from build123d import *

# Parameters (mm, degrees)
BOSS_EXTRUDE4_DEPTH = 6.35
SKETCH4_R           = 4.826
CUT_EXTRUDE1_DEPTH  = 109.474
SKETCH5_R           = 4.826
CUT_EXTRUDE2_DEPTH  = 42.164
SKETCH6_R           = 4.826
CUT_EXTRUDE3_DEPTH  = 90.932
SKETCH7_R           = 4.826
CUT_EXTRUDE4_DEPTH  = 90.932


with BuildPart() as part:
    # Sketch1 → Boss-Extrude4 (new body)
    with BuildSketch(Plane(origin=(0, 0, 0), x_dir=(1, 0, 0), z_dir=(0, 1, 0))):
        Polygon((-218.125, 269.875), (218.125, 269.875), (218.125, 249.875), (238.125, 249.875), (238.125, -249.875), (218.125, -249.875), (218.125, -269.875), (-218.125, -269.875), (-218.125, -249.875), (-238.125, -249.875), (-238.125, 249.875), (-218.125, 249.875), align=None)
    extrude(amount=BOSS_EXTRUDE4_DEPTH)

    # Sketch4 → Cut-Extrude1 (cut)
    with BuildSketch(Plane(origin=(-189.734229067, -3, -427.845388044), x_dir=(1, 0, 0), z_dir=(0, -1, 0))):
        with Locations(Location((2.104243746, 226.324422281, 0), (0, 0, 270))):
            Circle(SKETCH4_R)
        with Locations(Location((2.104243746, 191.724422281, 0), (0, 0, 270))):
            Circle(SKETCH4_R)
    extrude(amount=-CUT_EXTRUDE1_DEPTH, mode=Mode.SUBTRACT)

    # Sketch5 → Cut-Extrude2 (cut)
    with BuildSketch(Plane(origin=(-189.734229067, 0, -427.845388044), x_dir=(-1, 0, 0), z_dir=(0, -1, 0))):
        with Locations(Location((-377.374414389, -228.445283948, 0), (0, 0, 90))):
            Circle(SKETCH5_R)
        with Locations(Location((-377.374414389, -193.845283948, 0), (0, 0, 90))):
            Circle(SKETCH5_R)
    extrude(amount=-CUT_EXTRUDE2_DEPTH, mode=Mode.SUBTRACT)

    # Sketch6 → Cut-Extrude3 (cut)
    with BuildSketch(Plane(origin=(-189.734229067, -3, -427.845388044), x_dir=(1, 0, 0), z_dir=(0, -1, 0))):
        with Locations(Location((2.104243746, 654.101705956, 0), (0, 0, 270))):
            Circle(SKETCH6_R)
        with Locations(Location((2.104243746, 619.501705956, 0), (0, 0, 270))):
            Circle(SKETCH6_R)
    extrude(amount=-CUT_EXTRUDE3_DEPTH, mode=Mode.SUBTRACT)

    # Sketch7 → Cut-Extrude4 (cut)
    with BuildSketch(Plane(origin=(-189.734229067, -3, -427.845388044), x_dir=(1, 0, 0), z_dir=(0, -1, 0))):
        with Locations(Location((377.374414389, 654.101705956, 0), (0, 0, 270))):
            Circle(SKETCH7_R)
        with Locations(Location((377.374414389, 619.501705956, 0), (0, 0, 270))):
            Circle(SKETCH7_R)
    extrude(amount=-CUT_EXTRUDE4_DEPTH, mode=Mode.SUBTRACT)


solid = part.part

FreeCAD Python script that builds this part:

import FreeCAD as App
import Part
import Sketcher
Q = App.Units.Quantity


def add_polygon(sketch, points):
    """Adds a closed chain of lines whose ends are joined by coincident constraints."""
    first, n = sketch.GeometryCount, len(points)
    for a, b in zip(points, points[1:] + points[:1]):
        sketch.addGeometry(Part.LineSegment(App.Vector(*a, 0), App.Vector(*b, 0)), False)
    for i in range(n):
        sketch.addConstraint(Sketcher.Constraint("Coincident", first + i, 2, first + (i + 1) % n, 1))

doc = App.newDocument("Part")
params = doc.addObject("Spreadsheet::Sheet", "Params")
for row, (alias, value) in enumerate([
    ("pad1_length", "0.25 in"),
    ("sketch2_diameter", "0.38 in"),
    ("pocket1_length", "4.31 in"),
    ("sketch3_diameter", "0.38 in"),
    ("pocket2_length", "1.66 in"),
    ("sketch4_diameter", "0.38 in"),
    ("pocket3_length", "3.58 in"),
    ("sketch5_diameter", "0.38 in"),
    ("pocket4_length", "3.58 in"),
], start=1):
    params.set(f"A{row}", alias)
    params.set(f"B{row}", "=" + value)
    params.setAlias(f"B{row}", alias)

body = doc.addObject("PartDesign::Body", "Body")

sketch1 = doc.addObject("Sketcher::SketchObject", "Sketch")
body.addObject(sketch1)
sketch1.AttachmentSupport = (doc.XZ_Plane, [""])
sketch1.MapMode = "FlatFace"
add_polygon(sketch1, [(218, -270), (-218, -270), (-218, -250), (-238, -250), (-238, 250), (-218, 250), (-218, 270), (218, 270), (218, 250), (238, 250), (238, -250), (218, -250)])
sketch1.addConstraint([
    Sketcher.Constraint("Horizontal", 0),
    Sketcher.Constraint("Vertical", 1),
    Sketcher.Constraint("Horizontal", 2),
    Sketcher.Constraint("Vertical", 3),
    Sketcher.Constraint("Horizontal", 4),
    Sketcher.Constraint("Vertical", 5),
    Sketcher.Constraint("Horizontal", 6),
    Sketcher.Constraint("Vertical", 7),
    Sketcher.Constraint("Horizontal", 8),
    Sketcher.Constraint("Vertical", 9),
    Sketcher.Constraint("Horizontal", 10),
    Sketcher.Constraint("Vertical", 11),
    Sketcher.Constraint("Symmetric", 0, 2, 6, 2, -1, 1),
    Sketcher.Constraint("Symmetric", 2, 2, 8, 2, -1, 1),
    Sketcher.Constraint("Symmetric", 4, 2, 10, 2, -1, 1),
    Sketcher.Constraint("Symmetric", 4, 2, 7, 2, -2),
    Sketcher.Constraint("Equal", 10, 1),
    Sketcher.Constraint("DistanceY", 0, 2, 5, 2, Q("21.25 in")),
    Sketcher.Constraint("DistanceX", 3, 2, 8, 2, Q("18.75 in")),
    Sketcher.Constraint("DistanceX", 0, 2, 0, 1, Q("436.25 mm")),
])
pad1 = doc.addObject("PartDesign::Pad", "Pad")
body.addObject(pad1)
pad1.Profile = sketch1
pad1.setExpression("Length", "Params.pad1_length")
pad1.Reversed = True

sketch2 = doc.addObject("Sketcher::SketchObject", "Sketch001")
body.addObject(sketch2)
sketch2.AttachmentSupport = (doc.XZ_Plane, [""])
sketch2.MapMode = "FlatFace"
sketch2.AttachmentOffset = App.Placement(App.Vector(0, 0, 3), App.Rotation())
sketch2.addGeometry([
    Part.Circle(App.Vector(-187.6, -201.5, 0), App.Vector(0, 0, 1), 4.8),
    Part.Circle(App.Vector(-187.6, -236.1, 0), App.Vector(0, 0, 1), 4.8),
], False)
sketch2.addConstraint([
    Sketcher.Constraint("Equal", 0, 1),
    Sketcher.Constraint("Vertical", 0, 3, 1, 3),
    Sketcher.Constraint("Diameter", 0, Q("0.38 in")),
    Sketcher.Constraint("DistanceY", 1, 3, 0, 3, Q("34.6 mm")),
    Sketcher.Constraint("DistanceX", 0, 3, -1, 1, Q("187.629985 mm")),
    Sketcher.Constraint("DistanceY", 0, 3, -1, 1, Q("201.520966 mm")),
])
sketch2.setExpression("Constraints[2]", "Params.sketch2_diameter")
pocket1 = doc.addObject("PartDesign::Pocket", "Pocket")
body.addObject(pocket1)
pocket1.Profile = sketch2
pocket1.setExpression("Length", "Params.pocket1_length")

sketch3 = doc.addObject("Sketcher::SketchObject", "Sketch002")
body.addObject(sketch3)
sketch3.AttachmentSupport = (doc.XZ_Plane, [""])
sketch3.MapMode = "FlatFace"
sketch3.addGeometry([
    Part.Circle(App.Vector(187.6, -199.4, 0), App.Vector(0, 0, 1), 4.8),
    Part.Circle(App.Vector(187.6, -234, 0), App.Vector(0, 0, 1), 4.8),
], False)
sketch3.addConstraint([
    Sketcher.Constraint("Equal", 0, 1),
    Sketcher.Constraint("Vertical", 0, 3, 1, 3),
    Sketcher.Constraint("Diameter", 0, Q("0.38 in")),
    Sketcher.Constraint("DistanceY", 1, 3, 0, 3, Q("34.6 mm")),
    Sketcher.Constraint("DistanceX", -1, 1, 0, 3, Q("187.640185 mm")),
    Sketcher.Constraint("DistanceY", 0, 3, -1, 1, Q("199.400104 mm")),
])
sketch3.setExpression("Constraints[2]", "Params.sketch3_diameter")
pocket2 = doc.addObject("PartDesign::Pocket", "Pocket001")
body.addObject(pocket2)
pocket2.Profile = sketch3
pocket2.setExpression("Length", "Params.pocket2_length")

sketch4 = doc.addObject("Sketcher::SketchObject", "Sketch003")
body.addObject(sketch4)
sketch4.AttachmentSupport = (doc.XZ_Plane, [""])
sketch4.MapMode = "FlatFace"
sketch4.AttachmentOffset = App.Placement(App.Vector(0, 0, 3), App.Rotation())
sketch4.addGeometry([
    Part.Circle(App.Vector(-187.6, 226.3, 0), App.Vector(0, 0, 1), 4.8),
    Part.Circle(App.Vector(-187.6, 191.7, 0), App.Vector(0, 0, 1), 4.8),
], False)
sketch4.addConstraint([
    Sketcher.Constraint("Equal", 0, 1),
    Sketcher.Constraint("Vertical", 0, 3, 1, 3),
    Sketcher.Constraint("Diameter", 0, Q("0.38 in")),
    Sketcher.Constraint("DistanceY", 1, 3, 0, 3, Q("34.6 mm")),
    Sketcher.Constraint("DistanceX", 0, 3, -1, 1, Q("187.629985 mm")),
    Sketcher.Constraint("DistanceY", -1, 1, 0, 3, Q("226.256318 mm")),
])
sketch4.setExpression("Constraints[2]", "Params.sketch4_diameter")
pocket3 = doc.addObject("PartDesign::Pocket", "Pocket002")
body.addObject(pocket3)
pocket3.Profile = sketch4
pocket3.setExpression("Length", "Params.pocket3_length")

sketch5 = doc.addObject("Sketcher::SketchObject", "Sketch004")
body.addObject(sketch5)
sketch5.AttachmentSupport = (doc.XZ_Plane, [""])
sketch5.MapMode = "FlatFace"
sketch5.AttachmentOffset = App.Placement(App.Vector(0, 0, 3), App.Rotation())
sketch5.addGeometry([
    Part.Circle(App.Vector(187.6, 226.3, 0), App.Vector(0, 0, 1), 4.8),
    Part.Circle(App.Vector(187.6, 191.7, 0), App.Vector(0, 0, 1), 4.8),
], False)
sketch5.addConstraint([
    Sketcher.Constraint("Equal", 0, 1),
    Sketcher.Constraint("Vertical", 0, 3, 1, 3),
    Sketcher.Constraint("Diameter", 0, Q("0.38 in")),
    Sketcher.Constraint("DistanceY", 1, 3, 0, 3, Q("34.6 mm")),
    Sketcher.Constraint("DistanceX", -1, 1, 0, 3, Q("187.640185 mm")),
    Sketcher.Constraint("DistanceY", -1, 1, 0, 3, Q("226.256318 mm")),
])
sketch5.setExpression("Constraints[2]", "Params.sketch5_diameter")
pocket4 = doc.addObject("PartDesign::Pocket", "Pocket003")
body.addObject(pocket4)
pocket4.Profile = sketch5
pocket4.setExpression("Length", "Params.pocket4_length")

doc.recompute()
